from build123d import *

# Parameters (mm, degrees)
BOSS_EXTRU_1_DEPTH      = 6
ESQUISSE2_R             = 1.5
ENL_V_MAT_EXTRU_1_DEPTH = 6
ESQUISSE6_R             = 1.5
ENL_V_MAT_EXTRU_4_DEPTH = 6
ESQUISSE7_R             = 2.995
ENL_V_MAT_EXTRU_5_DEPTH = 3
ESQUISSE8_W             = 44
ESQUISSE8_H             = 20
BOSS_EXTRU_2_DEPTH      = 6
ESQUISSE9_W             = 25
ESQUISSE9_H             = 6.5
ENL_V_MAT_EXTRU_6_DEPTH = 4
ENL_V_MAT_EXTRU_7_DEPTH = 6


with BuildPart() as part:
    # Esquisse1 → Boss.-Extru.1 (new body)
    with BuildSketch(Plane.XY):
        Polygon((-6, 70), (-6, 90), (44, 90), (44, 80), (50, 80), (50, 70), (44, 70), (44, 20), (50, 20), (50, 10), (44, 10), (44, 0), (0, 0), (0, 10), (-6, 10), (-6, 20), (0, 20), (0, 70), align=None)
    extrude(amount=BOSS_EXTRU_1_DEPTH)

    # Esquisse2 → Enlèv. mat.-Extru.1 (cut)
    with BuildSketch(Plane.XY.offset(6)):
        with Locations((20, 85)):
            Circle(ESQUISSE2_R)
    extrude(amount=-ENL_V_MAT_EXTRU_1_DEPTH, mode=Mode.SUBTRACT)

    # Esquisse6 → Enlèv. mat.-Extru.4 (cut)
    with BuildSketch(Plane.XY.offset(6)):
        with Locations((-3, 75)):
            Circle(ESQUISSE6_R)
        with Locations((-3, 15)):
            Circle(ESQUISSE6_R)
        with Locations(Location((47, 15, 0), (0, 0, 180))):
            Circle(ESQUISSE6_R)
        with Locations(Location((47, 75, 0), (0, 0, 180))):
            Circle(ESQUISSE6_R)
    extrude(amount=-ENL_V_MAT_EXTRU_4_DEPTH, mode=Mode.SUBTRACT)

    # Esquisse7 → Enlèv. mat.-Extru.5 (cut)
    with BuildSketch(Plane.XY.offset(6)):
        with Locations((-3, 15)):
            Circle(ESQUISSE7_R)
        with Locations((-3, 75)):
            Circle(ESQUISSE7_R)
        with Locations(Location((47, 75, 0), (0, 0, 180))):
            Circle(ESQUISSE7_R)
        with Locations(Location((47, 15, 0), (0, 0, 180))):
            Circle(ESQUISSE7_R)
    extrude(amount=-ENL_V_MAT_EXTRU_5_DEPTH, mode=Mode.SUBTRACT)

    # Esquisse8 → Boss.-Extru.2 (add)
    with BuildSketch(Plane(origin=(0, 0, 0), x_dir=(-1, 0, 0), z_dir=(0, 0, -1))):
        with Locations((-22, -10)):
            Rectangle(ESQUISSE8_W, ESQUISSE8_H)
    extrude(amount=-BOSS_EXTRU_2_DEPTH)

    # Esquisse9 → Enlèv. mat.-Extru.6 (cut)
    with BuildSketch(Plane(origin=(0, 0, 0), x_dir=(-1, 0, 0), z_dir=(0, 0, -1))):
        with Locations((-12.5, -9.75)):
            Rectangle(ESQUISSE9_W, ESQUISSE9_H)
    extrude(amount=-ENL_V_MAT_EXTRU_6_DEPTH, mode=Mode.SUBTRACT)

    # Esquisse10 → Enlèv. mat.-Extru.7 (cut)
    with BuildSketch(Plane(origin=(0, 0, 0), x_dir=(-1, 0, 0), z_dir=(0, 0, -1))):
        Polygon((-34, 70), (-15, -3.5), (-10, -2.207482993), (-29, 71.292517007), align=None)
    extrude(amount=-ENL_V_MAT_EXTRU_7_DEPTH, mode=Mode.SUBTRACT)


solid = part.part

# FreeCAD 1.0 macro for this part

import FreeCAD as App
import Part
import Sketcher

V = App.Vector


def add_polygon(sketch, points):
    """Adds a closed chain of lines whose ends are joined by coincident constraints."""
    first, n = sketch.GeometryCount, len(points)
    for a, b in zip(points, points[1:] + points[:1]):
        sketch.addGeometry(Part.LineSegment(App.Vector(*a, 0), App.Vector(*b, 0)), False)
    for i in range(n):
        sketch.addConstraint(Sketcher.Constraint("Coincident", first + i, 2, first + (i + 1) % n, 1))

doc = App.newDocument("Part")
body = doc.addObject("PartDesign::Body", "Body")

# Sketch on XY plane
sketch1 = doc.addObject("Sketcher::SketchObject", "Sketch")
body.addObject(sketch1)
sketch1.AttachmentSupport = (doc.XY_Plane, [""])
sketch1.MapMode = "FlatFace"
add_polygon(sketch1, [(-6, 90), (-6, 70), (0, 70), (0, 20), (-6, 20), (-6, 10), (0, 10), (0, 0), (44, 0), (44, 10), (50, 10), (50, 20), (44, 20), (44, 70), (50, 70), (50, 80), (44, 80), (44, 90)])  # lines 0-17
sketch1.addConstraint([
    Sketcher.Constraint("Vertical", 0),
    Sketcher.Constraint("Horizontal", 1),
    Sketcher.Constraint("Vertical", 2),
    Sketcher.Constraint("Horizontal", 3),
    Sketcher.Constraint("Vertical", 4),
    Sketcher.Constraint("Horizontal", 5),
    Sketcher.Constraint("Vertical", 6),
    Sketcher.Constraint("Horizontal", 7),
    Sketcher.Constraint("Vertical", 8),
    Sketcher.Constraint("Horizontal", 9),
    Sketcher.Constraint("Vertical", 10),
    Sketcher.Constraint("Horizontal", 11),
    Sketcher.Constraint("Vertical", 12),
    Sketcher.Constraint("Horizontal", 13),
    Sketcher.Constraint("Vertical", 14),
    Sketcher.Constraint("Horizontal", 15),
    Sketcher.Constraint("Vertical", 16),
    Sketcher.Constraint("Horizontal", 17),
    Sketcher.Constraint("Coincident", 6, 2, -1, 1),
    Sketcher.Constraint("PointOnObject", 1, 2, -2),
    Sketcher.Constraint("Horizontal", 5, 2, 8, 2),
    Sketcher.Constraint("Horizontal", 3, 2, 10, 2),
    Sketcher.Constraint("Horizontal", 1, 2, 12, 2),
    Sketcher.Constraint("Vertical", 0, 2, 3, 2),
    Sketcher.Constraint("Vertical", 8, 2, 11, 2),
    Sketcher.Constraint("Vertical", 10, 2, 13, 2),
    Sketcher.Constraint("Vertical", 12, 2, 15, 2),
    Sketcher.Constraint("Equal", 5, 9),
    Sketcher.Constraint("Equal", 17, 2),
    Sketcher.Constraint("Equal", 4, 6),
    Sketcher.Constraint("Equal", 10, 14),
    Sketcher.Constraint("Equal", 14, 16),
    Sketcher.Constraint("DistanceX", 1, 1, 1, 2, 6.0),
    Sketcher.Constraint("DistanceX", 7, 1, 7, 2, 44.0),
    Sketcher.Constraint("DistanceY", 0, 2, 0, 1, 20.0),
])
pad1 = doc.addObject("PartDesign::Pad", "Pad")
body.addObject(pad1)
pad1.Profile = sketch1
pad1.Length = 6

# Sketch on XY plane
sketch2 = doc.addObject("Sketcher::SketchObject", "Sketch001")
body.addObject(sketch2)
sketch2.AttachmentSupport = (doc.XY_Plane, [""])
sketch2.MapMode = "FlatFace"
sketch2.AttachmentOffset = App.Placement(V(0, 0, 6), App.Rotation())
sketch2.addGeometry(Part.Circle(V(20, 85, 0), V(0, 0, 1), 1.5), False)
sketch2.addConstraint([
    Sketcher.Constraint("Diameter", 0, 3.0),
    Sketcher.Constraint("DistanceX", -1, 1, 0, 3, 20.0),
    Sketcher.Constraint("DistanceY", -1, 1, 0, 3, 85.0),
])
pocket1 = doc.addObject("PartDesign::Pocket", "Pocket")
body.addObject(pocket1)
pocket1.Profile = sketch2
pocket1.Length = 6

# Sketch on XY plane
sketch3 = doc.addObject("Sketcher::SketchObject", "Sketch002")
body.addObject(sketch3)
sketch3.AttachmentSupport = (doc.XY_Plane, [""])
sketch3.MapMode = "FlatFace"
sketch3.AttachmentOffset = App.Placement(V(0, 0, 6), App.Rotation())
sketch3.addGeometry([
    Part.Circle(V(-3, 75, 0), V(0, 0, 1), 1.5),
    Part.Circle(V(-3, 15, 0), V(0, 0, 1), 1.5),
    Part.Circle(V(47, 15, 0), V(0, 0, 1), 1.5),
    Part.Circle(V(47, 75, 0), V(0, 0, 1), 1.5),
], False)
sketch3.addConstraint([
    Sketcher.Constraint("Equal", 0, 1),
    Sketcher.Constraint("Equal", 1, 2),
    Sketcher.Constraint("Equal", 2, 3),
    Sketcher.Constraint("Horizontal", 1, 3, 2, 3),
    Sketcher.Constraint("Horizontal", 0, 3, 3, 3),
    Sketcher.Constraint("Vertical", 0, 3, 1, 3),
    Sketcher.Constraint("Vertical", 2, 3, 3, 3),
    Sketcher.Constraint("Diameter", 0, 3.0),
    Sketcher.Constraint("DistanceX", 0, 3, -1, 1, 3.0),
    Sketcher.Constraint("DistanceY", -1, 1, 0, 3, 75.0),
    Sketcher.Constraint("DistanceY", -1, 1, 1, 3, 15.0),
    Sketcher.Constraint("DistanceX", -1, 1, 2, 3, 47.0),
])
pocket2 = doc.addObject("PartDesign::Pocket", "Pocket001")
body.addObject(pocket2)
pocket2.Profile = sketch3
pocket2.Length = 6

# Sketch on XY plane
sketch4 = doc.addObject("Sketcher::SketchObject", "Sketch003")
body.addObject(sketch4)
sketch4.AttachmentSupport = (doc.XY_Plane, [""])
sketch4.MapMode = "FlatFace"
sketch4.AttachmentOffset = App.Placement(V(0, 0, 6), App.Rotation())
sketch4.addGeometry([
    Part.Circle(V(-3, 15, 0), V(0, 0, 1), 3),
    Part.Circle(V(-3, 75, 0), V(0, 0, 1), 3),
    Part.Circle(V(47, 75, 0), V(0, 0, 1), 3),
    Part.Circle(V(47, 15, 0), V(0, 0, 1), 3),
], False)
sketch4.addConstraint([
    Sketcher.Constraint("Equal", 0, 1),
    Sketcher.Constraint("Equal", 1, 2),
    Sketcher.Constraint("Equal", 2, 3),
    Sketcher.Constraint("Horizontal", 1, 3, 2, 3),
    Sketcher.Constraint("Horizontal", 0, 3, 3, 3),
    Sketcher.Constraint("Vertical", 0, 3, 1, 3),
    Sketcher.Constraint("Vertical", 2, 3, 3, 3),
    Sketcher.Constraint("Diameter", 0, 5.99),
    Sketcher.Constraint("DistanceX", 0, 3, -1, 1, 3.0),
    Sketcher.Constraint("DistanceY", -1, 1, 0, 3, 15.0),
    Sketcher.Constraint("DistanceY", -1, 1, 1, 3, 75.0),
    Sketcher.Constraint("DistanceX", -1, 1, 2, 3, 47.0),
])
pocket3 = doc.addObject("PartDesign::Pocket", "Pocket002")
body.addObject(pocket3)
pocket3.Profile = sketch4
pocket3.Length = 3

# Sketch on XY plane
sketch5 = doc.addObject("Sketcher::SketchObject", "Sketch004")
body.addObject(sketch5)
sketch5.AttachmentSupport = (doc.XY_Plane, [""])
sketch5.MapMode = "FlatFace"
add_polygon(sketch5, [(44, 0), (44, -20), (0, -20), (0, 0)])  # lines 0-3
sketch5.addConstraint([
    Sketcher.Constraint("Vertical", 0),
    Sketcher.Constraint("Horizontal", 1),
    Sketcher.Constraint("Vertical", 2),
    Sketcher.Constraint("Horizontal", 3),
    Sketcher.Constraint("Coincident", 2, 2, -1, 1),
    Sketcher.Constraint("DistanceX", 1, 2, 1, 1, 44.0),
    Sketcher.Constraint("DistanceY", 0, 2, 0, 1, 20.0),
])
pad2 = doc.addObject("PartDesign::Pad", "Pad001")
body.addObject(pad2)
pad2.Profile = sketch5
pad2.Length = 6

# Sketch on XY plane
sketch6 = doc.addObject("Sketcher::SketchObject", "Sketch005")
body.addObject(sketch6)
sketch6.AttachmentSupport = (doc.XY_Plane, [""])
sketch6.MapMode = "FlatFace"
add_polygon(sketch6, [(25, -6), (25, -13), (0, -13), (0, -6)])  # lines 0-3
sketch6.addConstraint([
    Sketcher.Constraint("Vertical", 0),
    Sketcher.Constraint("Horizontal", 1),
    Sketcher.Constraint("Vertical", 2),
    Sketcher.Constraint("Horizontal", 3),
    Sketcher.Constraint("PointOnObject", 1, 2, -2),
    Sketcher.Constraint("DistanceX", 1, 2, 1, 1, 25.0),
    Sketcher.Constraint("DistanceY", 0, 2, 0, 1, 6.5),
    Sketcher.Constraint("DistanceY", 0, 2, -1, 1, 13.0),
])
pocket4 = doc.addObject("PartDesign::Pocket", "Pocket003")
body.addObject(pocket4)
pocket4.Profile = sketch6
pocket4.Length = 4
pocket4.Reversed = True

# Sketch on XY plane
sketch7 = doc.addObject("Sketcher::SketchObject", "Sketch006")
body.addObject(sketch7)
sketch7.AttachmentSupport = (doc.XY_Plane, [""])
sketch7.MapMode = "FlatFace"
add_polygon(sketch7, [(34, 70), (15, -4), (10, -2), (29, 71)])  # lines 0-3
sketch7.addConstraint([
    Sketcher.Constraint("Perpendicular", 0, 1),
    Sketcher.Constraint("Perpendicular", 1, 2),
    Sketcher.Constraint("Perpendicular", 2, 3),
    Sketcher.Constraint("DistanceX", -1, 1, 0, 2, 15.0),
    Sketcher.Constraint("DistanceX", -1, 1, 1, 2, 10.0),
    Sketcher.Constraint("DistanceX", -1, 1, 2, 2, 29.0),
    Sketcher.Constraint("DistanceY", -1, 1, 3, 2, 70.0),
    Sketcher.Constraint("DistanceY", 0, 2, -1, 1, 3.5),
])
pocket5 = doc.addObject("PartDesign::Pocket", "Pocket004")
body.addObject(pocket5)
pocket5.Profile = sketch7
pocket5.Length = 6
pocket5.Reversed = True

doc.recompute()
